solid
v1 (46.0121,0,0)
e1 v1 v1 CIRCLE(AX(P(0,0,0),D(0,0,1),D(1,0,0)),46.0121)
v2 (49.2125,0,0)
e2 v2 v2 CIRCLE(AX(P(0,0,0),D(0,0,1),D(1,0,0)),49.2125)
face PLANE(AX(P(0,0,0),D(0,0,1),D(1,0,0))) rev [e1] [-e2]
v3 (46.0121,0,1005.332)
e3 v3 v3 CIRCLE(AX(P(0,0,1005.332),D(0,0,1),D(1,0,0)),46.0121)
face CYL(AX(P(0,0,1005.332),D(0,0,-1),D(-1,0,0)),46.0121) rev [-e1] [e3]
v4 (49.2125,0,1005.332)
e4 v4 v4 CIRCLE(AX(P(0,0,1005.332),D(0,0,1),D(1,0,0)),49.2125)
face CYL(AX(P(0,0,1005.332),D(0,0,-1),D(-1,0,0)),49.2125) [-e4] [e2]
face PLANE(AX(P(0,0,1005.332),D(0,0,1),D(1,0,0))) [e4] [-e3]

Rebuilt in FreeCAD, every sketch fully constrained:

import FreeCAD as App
import Part
import Sketcher

V = App.Vector
Q = App.Units.Quantity

doc = App.newDocument("Part")
body = doc.addObject("PartDesign::Body", "Body")

# Sketch on XY plane
sketch1 = doc.addObject("Sketcher::SketchObject", "Sketch")
body.addObject(sketch1)
sketch1.AttachmentSupport = (doc.XY_Plane, [""])
sketch1.MapMode = "FlatFace"
sketch1.addGeometry([
    Part.Circle(V(0, 0, 0), V(0, 0, 1), 49.2125),
    Part.Circle(V(0, 0, 0), V(0, 0, 1), 46.0121),
], False)
sketch1.addConstraint([
    Sketcher.Constraint("Coincident", 0, 3, -1, 1),
    Sketcher.Constraint("Coincident", 1, 3, -1, 1),
    Sketcher.Constraint("Diameter", 0, Q("3.875 in")),
    Sketcher.Constraint("Diameter", 1, Q("3.623 in")),
])
pad1 = doc.addObject("PartDesign::Pad", "Pad")
body.addObject(pad1)
pad1.Profile = sketch1
pad1.Length = Q("39.58 in")

doc.recompute()
